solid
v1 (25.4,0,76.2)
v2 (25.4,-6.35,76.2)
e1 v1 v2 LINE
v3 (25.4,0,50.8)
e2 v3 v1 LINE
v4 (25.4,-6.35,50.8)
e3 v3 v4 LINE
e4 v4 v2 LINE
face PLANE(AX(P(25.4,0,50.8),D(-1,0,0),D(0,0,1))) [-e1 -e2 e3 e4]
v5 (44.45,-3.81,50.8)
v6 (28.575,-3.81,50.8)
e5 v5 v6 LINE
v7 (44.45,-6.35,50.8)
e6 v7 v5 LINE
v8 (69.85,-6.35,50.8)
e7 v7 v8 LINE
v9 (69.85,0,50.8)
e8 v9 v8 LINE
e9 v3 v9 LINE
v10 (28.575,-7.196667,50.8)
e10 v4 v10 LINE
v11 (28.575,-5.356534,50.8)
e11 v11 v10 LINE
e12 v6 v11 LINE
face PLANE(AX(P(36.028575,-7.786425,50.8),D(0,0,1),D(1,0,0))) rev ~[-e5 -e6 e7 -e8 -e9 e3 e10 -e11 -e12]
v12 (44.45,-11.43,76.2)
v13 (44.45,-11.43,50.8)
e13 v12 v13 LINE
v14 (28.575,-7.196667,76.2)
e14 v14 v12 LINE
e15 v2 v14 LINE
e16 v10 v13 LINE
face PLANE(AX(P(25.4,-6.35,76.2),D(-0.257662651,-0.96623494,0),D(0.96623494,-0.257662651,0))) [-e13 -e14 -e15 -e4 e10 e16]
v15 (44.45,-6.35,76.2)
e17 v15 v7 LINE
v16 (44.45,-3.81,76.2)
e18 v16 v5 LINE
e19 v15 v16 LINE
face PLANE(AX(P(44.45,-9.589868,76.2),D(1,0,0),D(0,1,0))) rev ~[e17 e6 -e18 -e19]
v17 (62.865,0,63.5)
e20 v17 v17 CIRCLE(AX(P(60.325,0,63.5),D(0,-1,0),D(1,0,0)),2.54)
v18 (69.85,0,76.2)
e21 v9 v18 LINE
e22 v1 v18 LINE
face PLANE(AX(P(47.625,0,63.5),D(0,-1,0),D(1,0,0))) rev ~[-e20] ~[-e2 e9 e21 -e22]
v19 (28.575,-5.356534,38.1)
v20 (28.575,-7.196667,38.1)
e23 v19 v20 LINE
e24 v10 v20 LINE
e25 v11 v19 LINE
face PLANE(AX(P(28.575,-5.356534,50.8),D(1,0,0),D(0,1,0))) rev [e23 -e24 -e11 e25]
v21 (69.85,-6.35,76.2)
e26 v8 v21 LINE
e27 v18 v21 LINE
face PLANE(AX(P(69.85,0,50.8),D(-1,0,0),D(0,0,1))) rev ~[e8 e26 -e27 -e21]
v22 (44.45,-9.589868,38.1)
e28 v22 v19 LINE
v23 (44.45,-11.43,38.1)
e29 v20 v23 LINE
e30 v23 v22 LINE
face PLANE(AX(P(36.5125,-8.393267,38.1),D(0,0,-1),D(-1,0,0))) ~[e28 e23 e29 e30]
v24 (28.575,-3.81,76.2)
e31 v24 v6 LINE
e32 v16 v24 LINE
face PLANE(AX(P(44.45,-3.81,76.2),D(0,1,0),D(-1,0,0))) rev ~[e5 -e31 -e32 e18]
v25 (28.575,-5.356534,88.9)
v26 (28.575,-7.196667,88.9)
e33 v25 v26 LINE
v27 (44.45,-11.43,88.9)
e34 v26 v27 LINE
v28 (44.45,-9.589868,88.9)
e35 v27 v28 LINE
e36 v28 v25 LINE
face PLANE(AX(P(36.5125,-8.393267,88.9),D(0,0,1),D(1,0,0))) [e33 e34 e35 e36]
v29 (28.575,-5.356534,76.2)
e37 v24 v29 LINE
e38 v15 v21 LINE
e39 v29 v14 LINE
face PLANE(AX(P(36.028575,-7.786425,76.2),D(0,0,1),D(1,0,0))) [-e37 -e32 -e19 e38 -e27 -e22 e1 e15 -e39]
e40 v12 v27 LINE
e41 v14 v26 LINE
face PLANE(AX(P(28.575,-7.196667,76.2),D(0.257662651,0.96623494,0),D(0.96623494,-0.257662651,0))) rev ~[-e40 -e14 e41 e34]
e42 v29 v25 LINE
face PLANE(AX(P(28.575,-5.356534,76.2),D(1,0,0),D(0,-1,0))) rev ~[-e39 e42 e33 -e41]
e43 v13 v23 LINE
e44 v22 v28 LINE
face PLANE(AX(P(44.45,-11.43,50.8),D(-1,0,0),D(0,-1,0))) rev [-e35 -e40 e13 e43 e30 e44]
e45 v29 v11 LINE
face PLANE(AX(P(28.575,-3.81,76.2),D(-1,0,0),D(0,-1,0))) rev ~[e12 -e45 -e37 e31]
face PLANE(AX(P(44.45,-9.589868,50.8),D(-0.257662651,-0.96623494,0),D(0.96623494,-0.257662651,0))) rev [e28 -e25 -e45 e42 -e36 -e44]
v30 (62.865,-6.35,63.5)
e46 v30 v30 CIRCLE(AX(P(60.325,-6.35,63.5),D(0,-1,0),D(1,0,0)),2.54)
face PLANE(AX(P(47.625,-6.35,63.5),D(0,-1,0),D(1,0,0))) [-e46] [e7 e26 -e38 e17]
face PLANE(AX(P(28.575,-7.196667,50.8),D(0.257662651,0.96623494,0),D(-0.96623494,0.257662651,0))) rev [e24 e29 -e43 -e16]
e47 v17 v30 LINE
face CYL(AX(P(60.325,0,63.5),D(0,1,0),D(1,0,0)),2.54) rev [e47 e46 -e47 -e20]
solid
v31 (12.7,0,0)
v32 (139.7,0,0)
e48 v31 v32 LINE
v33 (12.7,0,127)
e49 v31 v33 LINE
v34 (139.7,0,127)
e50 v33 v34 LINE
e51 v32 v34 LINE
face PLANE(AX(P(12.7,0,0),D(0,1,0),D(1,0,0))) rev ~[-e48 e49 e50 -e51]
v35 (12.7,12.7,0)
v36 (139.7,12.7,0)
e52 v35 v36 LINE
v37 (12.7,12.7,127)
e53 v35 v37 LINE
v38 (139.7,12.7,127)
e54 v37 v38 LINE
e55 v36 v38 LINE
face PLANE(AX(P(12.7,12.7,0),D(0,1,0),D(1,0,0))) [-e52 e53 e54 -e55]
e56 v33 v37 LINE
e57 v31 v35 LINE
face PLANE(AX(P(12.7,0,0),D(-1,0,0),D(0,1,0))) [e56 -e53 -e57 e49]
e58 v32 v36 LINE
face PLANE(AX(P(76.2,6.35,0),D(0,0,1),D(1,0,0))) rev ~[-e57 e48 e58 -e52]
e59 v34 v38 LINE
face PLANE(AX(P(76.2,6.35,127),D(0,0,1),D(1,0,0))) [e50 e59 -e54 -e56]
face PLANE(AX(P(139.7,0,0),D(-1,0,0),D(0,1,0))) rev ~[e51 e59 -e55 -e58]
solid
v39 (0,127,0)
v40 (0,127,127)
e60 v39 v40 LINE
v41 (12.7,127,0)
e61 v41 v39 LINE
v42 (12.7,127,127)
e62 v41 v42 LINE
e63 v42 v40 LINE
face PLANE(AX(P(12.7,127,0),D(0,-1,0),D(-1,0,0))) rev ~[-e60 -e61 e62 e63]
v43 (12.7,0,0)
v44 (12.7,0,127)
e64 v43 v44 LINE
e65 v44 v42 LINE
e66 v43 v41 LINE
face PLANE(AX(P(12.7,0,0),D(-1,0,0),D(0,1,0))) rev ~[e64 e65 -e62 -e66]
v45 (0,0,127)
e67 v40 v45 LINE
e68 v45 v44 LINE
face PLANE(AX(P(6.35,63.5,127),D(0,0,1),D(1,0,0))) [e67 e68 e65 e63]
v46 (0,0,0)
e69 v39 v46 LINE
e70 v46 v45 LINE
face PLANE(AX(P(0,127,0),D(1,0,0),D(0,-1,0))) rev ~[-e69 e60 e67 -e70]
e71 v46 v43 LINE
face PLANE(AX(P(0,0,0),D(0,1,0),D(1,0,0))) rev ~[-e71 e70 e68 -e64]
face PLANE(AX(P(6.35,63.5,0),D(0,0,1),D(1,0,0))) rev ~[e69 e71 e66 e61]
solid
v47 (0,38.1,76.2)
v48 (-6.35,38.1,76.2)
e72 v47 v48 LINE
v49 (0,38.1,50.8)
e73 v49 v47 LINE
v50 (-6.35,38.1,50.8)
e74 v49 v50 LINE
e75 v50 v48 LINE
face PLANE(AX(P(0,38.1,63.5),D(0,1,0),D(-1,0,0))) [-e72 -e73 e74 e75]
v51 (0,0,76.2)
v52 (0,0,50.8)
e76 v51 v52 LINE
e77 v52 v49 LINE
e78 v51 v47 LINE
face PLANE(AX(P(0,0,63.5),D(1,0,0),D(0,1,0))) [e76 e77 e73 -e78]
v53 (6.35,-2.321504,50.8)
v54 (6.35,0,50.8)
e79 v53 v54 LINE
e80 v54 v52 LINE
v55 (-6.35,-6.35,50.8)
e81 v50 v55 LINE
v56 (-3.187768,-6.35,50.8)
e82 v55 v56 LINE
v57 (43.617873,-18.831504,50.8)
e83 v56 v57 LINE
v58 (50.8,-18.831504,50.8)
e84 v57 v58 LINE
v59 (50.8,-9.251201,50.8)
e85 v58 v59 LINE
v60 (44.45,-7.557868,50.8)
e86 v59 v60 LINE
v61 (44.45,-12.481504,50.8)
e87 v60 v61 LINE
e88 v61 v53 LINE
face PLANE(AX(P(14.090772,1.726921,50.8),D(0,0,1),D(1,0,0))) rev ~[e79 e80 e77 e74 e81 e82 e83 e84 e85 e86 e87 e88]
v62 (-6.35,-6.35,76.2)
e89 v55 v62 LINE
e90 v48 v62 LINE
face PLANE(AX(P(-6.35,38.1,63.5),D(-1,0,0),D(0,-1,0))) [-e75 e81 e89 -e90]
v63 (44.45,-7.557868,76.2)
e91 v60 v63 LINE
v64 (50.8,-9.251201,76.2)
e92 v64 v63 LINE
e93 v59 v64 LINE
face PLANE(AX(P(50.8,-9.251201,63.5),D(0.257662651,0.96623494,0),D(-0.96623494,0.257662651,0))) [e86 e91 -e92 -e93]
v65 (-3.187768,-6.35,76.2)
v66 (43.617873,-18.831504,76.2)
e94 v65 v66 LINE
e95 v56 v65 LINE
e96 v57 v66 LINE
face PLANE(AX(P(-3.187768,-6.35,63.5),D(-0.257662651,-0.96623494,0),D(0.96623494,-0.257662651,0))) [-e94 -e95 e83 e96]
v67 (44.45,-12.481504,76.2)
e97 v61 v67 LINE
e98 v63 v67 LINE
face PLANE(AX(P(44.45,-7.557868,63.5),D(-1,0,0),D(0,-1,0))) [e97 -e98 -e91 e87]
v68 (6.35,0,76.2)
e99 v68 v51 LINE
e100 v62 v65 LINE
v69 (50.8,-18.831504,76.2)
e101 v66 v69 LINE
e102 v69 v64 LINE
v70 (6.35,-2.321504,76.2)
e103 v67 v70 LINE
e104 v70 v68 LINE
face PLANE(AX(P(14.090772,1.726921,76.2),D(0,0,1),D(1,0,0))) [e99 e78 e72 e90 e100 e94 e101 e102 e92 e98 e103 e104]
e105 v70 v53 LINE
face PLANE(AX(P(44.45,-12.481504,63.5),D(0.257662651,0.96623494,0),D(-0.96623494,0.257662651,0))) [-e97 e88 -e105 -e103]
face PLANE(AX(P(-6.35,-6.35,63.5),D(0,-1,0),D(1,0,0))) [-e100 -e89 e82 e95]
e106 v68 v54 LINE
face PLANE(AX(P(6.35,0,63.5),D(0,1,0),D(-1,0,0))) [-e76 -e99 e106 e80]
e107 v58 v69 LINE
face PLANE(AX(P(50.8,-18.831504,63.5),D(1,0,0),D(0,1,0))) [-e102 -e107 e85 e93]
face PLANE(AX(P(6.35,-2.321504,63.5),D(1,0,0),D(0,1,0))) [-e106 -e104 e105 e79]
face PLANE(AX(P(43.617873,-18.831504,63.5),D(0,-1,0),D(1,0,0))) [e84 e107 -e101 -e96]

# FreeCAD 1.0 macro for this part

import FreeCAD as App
import Part
import Sketcher
from FreeCAD import Vector
Q = App.Units.Quantity

doc = App.newDocument("Part")
body = doc.addObject("PartDesign::Body", "Body")

# Sketch on XY plane
sketch1 = body.newObject("Sketcher::SketchObject", "Sketch")
sketch1.AttachmentSupport = (doc.getObject("XY_Plane"), [""])
sketch1.MapMode = "FlatFace"
sketch1.addGeometry([
    Part.LineSegment(Vector(13, 127, 0), Vector(0, 127, 0)),
    Part.LineSegment(Vector(0, 127, 0), Vector(0, 0, 0)),
    Part.LineSegment(Vector(0, 0, 0), Vector(13, 0, 0)),
    Part.LineSegment(Vector(13, 0, 0), Vector(13, 127, 0)),
], False)
sketch1.addConstraint([
    Sketcher.Constraint("Coincident", 0, 2, 1, 1),
    Sketcher.Constraint("Coincident", 1, 2, 2, 1),
    Sketcher.Constraint("Coincident", 2, 2, 3, 1),
    Sketcher.Constraint("Coincident", 3, 2, 0, 1),
    Sketcher.Constraint("Horizontal", 0),
    Sketcher.Constraint("Vertical", 1),
    Sketcher.Constraint("Horizontal", 2),
    Sketcher.Constraint("Vertical", 3),
    Sketcher.Constraint("Coincident", 1, 2, -1, 1),
    Sketcher.Constraint("DistanceY", 1, 2, 1, 1, Q("5 in")),
    Sketcher.Constraint("DistanceX", 0, 2, 0, 1, Q("0.5 in")),
])
pad1 = body.newObject("PartDesign::Pad", "Pad")
pad1.Profile = sketch1
pad1.Length = Q("5 in")
body2 = doc.addObject("PartDesign::Body", "Body001")

# Sketch on XY plane
sketch2 = body2.newObject("Sketcher::SketchObject", "Sketch001")
sketch2.AttachmentSupport = (doc.getObject("XY_Plane001"), [""])
sketch2.MapMode = "FlatFace"
sketch2.addGeometry([
    Part.LineSegment(Vector(13, 13, 0), Vector(13, 0, 0)),
    Part.LineSegment(Vector(13, 0, 0), Vector(140, 0, 0)),
    Part.LineSegment(Vector(140, 0, 0), Vector(140, 13, 0)),
    Part.LineSegment(Vector(140, 13, 0), Vector(13, 13, 0)),
], False)
sketch2.addConstraint([
    Sketcher.Constraint("Coincident", 0, 2, 1, 1),
    Sketcher.Constraint("Coincident", 1, 2, 2, 1),
    Sketcher.Constraint("Coincident", 2, 2, 3, 1),
    Sketcher.Constraint("Coincident", 3, 2, 0, 1),
    Sketcher.Constraint("Vertical", 0),
    Sketcher.Constraint("Horizontal", 1),
    Sketcher.Constraint("Vertical", 2),
    Sketcher.Constraint("Horizontal", 3),
    Sketcher.Constraint("PointOnObject", 0, 2, -1),
    Sketcher.Constraint("DistanceX", 1, 1, 1, 2, Q("5 in")),
    Sketcher.Constraint("DistanceY", 0, 2, 0, 1, Q("0.5 in")),
    Sketcher.Constraint("DistanceX", -1, 1, 0, 2, Q("0.5 in")),
])
pad2 = body2.newObject("PartDesign::Pad", "Pad001")
pad2.Profile = sketch2
pad2.Length = Q("5 in")
body3 = doc.addObject("PartDesign::Body", "Body002")

# Sketch on XZ plane
sketch3 = body3.newObject("Sketcher::SketchObject", "Sketch002")
sketch3.AttachmentSupport = (doc.getObject("XZ_Plane002"), [""])
sketch3.MapMode = "FlatFace"
sketch3.addGeometry([
    Part.LineSegment(Vector(25.4, 76.2, 0), Vector(25.4, 50.8, 0)),  # 0
    Part.LineSegment(Vector(25.4, 50.8, 0), Vector(69.8, 50.8, 0)),  # 1
    Part.LineSegment(Vector(69.8, 50.8, 0), Vector(69.8, 76.2, 0)),  # 2
    Part.LineSegment(Vector(69.8, 76.2, 0), Vector(25.4, 76.2, 0)),  # 3
    Part.Circle(Vector(60.3, 63.5, 0), Vector(0, 0, 1), 2.5),  # 4
], False)
sketch3.addConstraint([
    Sketcher.Constraint("Coincident", 0, 2, 1, 1),
    Sketcher.Constraint("Coincident", 1, 2, 2, 1),
    Sketcher.Constraint("Coincident", 2, 2, 3, 1),
    Sketcher.Constraint("Coincident", 3, 2, 0, 1),
    Sketcher.Constraint("Vertical", 0),
    Sketcher.Constraint("Horizontal", 1),
    Sketcher.Constraint("Vertical", 2),
    Sketcher.Constraint("Horizontal", 3),
    Sketcher.Constraint("Diameter", 4, Q("0.2 in")),
    Sketcher.Constraint("DistanceY", 0, 2, 0, 1, Q("1 in")),
    Sketcher.Constraint("DistanceX", -1, 1, 0, 2, Q("1 in")),
    Sketcher.Constraint("DistanceY", -1, 1, 0, 2, Q("2 in")),
    Sketcher.Constraint("DistanceX", 1, 1, 1, 2, Q("1.75 in")),
    Sketcher.Constraint("DistanceY", -1, 1, 4, 3, Q("2.5 in")),
    Sketcher.Constraint("DistanceX", -1, 1, 4, 3, Q("2.375 in")),
])
pad3 = body3.newObject("PartDesign::Pad", "Pad002")
pad3.Profile = sketch3
pad3.Length = Q("0.25 in")

# Sketch on XY plane
sketch4 = body3.newObject("Sketcher::SketchObject", "Sketch003")
sketch4.AttachmentSupport = (doc.getObject("XY_Plane002"), [""])
sketch4.MapMode = "FlatFace"
sketch4.AttachmentOffset = App.Placement(Vector(0, 0, 3 * 25.4), App.Rotation())
sketch4.addGeometry([
    Part.LineSegment(Vector(44, -6, 0), Vector(25, -6, 0)),
    Part.LineSegment(Vector(25, -6, 0), Vector(44, -11, 0)),
    Part.LineSegment(Vector(44, -11, 0), Vector(44, -6, 0)),
], False)
sketch4.addConstraint([
    Sketcher.Constraint("Coincident", 0, 2, 1, 1),
    Sketcher.Constraint("Coincident", 1, 2, 2, 1),
    Sketcher.Constraint("Coincident", 2, 2, 0, 1),
    Sketcher.Constraint("Horizontal", 0),
    Sketcher.Constraint("Vertical", 2),
    Sketcher.Constraint("DistanceY", 2, 1, 2, 2, Q("0.2 in")),
    Sketcher.Constraint("DistanceX", -1, 1, 0, 2, Q("1 in")),
    Sketcher.Constraint("DistanceX", 0, 2, 0, 1, Q("0.75 in")),
    Sketcher.Constraint("DistanceY", 0, 2, -1, 1, Q("0.25 in")),
])
pad4 = body3.newObject("PartDesign::Pad", "Pad003")
pad4.Profile = sketch4
pad4.Length = Q("1 in")
pad4.Reversed = True

# Sketch on XY plane
sketch5 = body3.newObject("Sketcher::SketchObject", "Sketch004")
sketch5.AttachmentSupport = (doc.getObject("XY_Plane002"), [""])
sketch5.MapMode = "FlatFace"
sketch5.AttachmentOffset = App.Placement(Vector(0, 0, 3 * 25.4), App.Rotation())
sketch5.addGeometry([
    Part.LineSegment(Vector(28.6, -5.4, 0), Vector(44.5, -9.6, 0)),
    Part.LineSegment(Vector(44.5, -9.6, 0), Vector(44.5, -3.8, 0)),
    Part.LineSegment(Vector(44.5, -3.8, 0), Vector(28.6, -3.8, 0)),
    Part.LineSegment(Vector(28.6, -3.8, 0), Vector(28.6, -5.4, 0)),
], False)
sketch5.addConstraint([
    Sketcher.Constraint("Coincident", 0, 2, 1, 1),
    Sketcher.Constraint("Coincident", 1, 2, 2, 1),
    Sketcher.Constraint("Coincident", 2, 2, 3, 1),
    Sketcher.Constraint("Coincident", 3, 2, 0, 1),
    Sketcher.Constraint("Vertical", 1),
    Sketcher.Constraint("Horizontal", 2),
    Sketcher.Constraint("Vertical", 3),
    Sketcher.Constraint("DistanceX", 2, 2, 2, 1, Q("0.625 in")),
    Sketcher.Constraint("DistanceX", -1, 1, 0, 2, Q("1.75 in")),
    Sketcher.Constraint("DistanceY", 1, 2, -1, 1, Q("0.15 in")),
    Sketcher.Constraint("Distance", 0, Q("16.429752 mm")),
    Sketcher.Constraint("DistanceY", 1, 1, 1, 2, Q("5.779868 mm")),
])
pocket1 = body3.newObject("PartDesign::Pocket", "Pocket")
pocket1.Profile = sketch5
pocket1.Type = "ThroughAll"

# Sketch on XY plane
sketch6 = body3.newObject("Sketcher::SketchObject", "Sketch005")
sketch6.AttachmentSupport = (doc.getObject("XY_Plane002"), [""])
sketch6.MapMode = "FlatFace"
sketch6.AttachmentOffset = App.Placement(Vector(0, 0, 3 * 25.4), App.Rotation())
sketch6.addGeometry([
    Part.LineSegment(Vector(44.5, -11.4, 0), Vector(44.5, -9.6, 0)),
    Part.LineSegment(Vector(44.5, -9.6, 0), Vector(28.6, -5.4, 0)),
    Part.LineSegment(Vector(28.6, -5.4, 0), Vector(28.6, -7.2, 0)),
    Part.LineSegment(Vector(28.6, -7.2, 0), Vector(44.5, -11.4, 0)),
], False)
sketch6.addConstraint([
    Sketcher.Constraint("Coincident", 0, 2, 1, 1),
    Sketcher.Constraint("Coincident", 1, 2, 2, 1),
    Sketcher.Constraint("Coincident", 2, 2, 3, 1),
    Sketcher.Constraint("Coincident", 3, 2, 0, 1),
    Sketcher.Constraint("Vertical", 0),
    Sketcher.Constraint("Vertical", 2),
    Sketcher.Constraint("Parallel", 1, 3),
    Sketcher.Constraint("DistanceX", -1, 1, 0, 2, Q("1.75 in")),
    Sketcher.Constraint("DistanceY", 3, 2, -1, 1, Q("0.45 in")),
    Sketcher.Constraint("DistanceX", -1, 1, 1, 2, Q("1.125 in")),
    Sketcher.Constraint("DistanceY", 0, 2, 2, 2, Q("2.393201 mm")),
    Sketcher.Constraint("Distance", 1, Q("16.429752 mm")),
])
pad5 = body3.newObject("PartDesign::Pad", "Pad004")
pad5.Profile = sketch6
pad5.Length = Q("0.5 in")
body4 = doc.addObject("PartDesign::Body", "Body003")
doc.recompute()

body4.BaseFeature = body3
doc.recompute()

mirroring = doc.addObject("Part::Mirroring", "Mirroring")
mirroring.Source = body3
mirroring.Base = Vector(0, 0, 63.5)
mirroring.Normal = Vector(0, 0, 1)
body5 = doc.addObject("PartDesign::Body", "Body004")
body5.BaseFeature = mirroring
boolean = body4.newObject("PartDesign::Boolean", "Boolean")
boolean.Type = "Fuse"
boolean.addObjects([body5])
doc.recompute()
body6 = doc.addObject("PartDesign::Body", "Body005")

# Sketch on XY plane
sketch7 = body6.newObject("Sketcher::SketchObject", "Sketch006")
sketch7.AttachmentSupport = (doc.getObject("XY_Plane005"), [""])
sketch7.MapMode = "FlatFace"
sketch7.AttachmentOffset = App.Placement(Vector(0, 0, 2.5 * 25.4), App.Rotation())
sketch7.addGeometry([
    Part.LineSegment(Vector(0, 0, 0), Vector(0, 38.1, 0)),  # 0
    Part.LineSegment(Vector(0, 38.1, 0), Vector(-6.3, 38.1, 0)),  # 1
    Part.LineSegment(Vector(-6.3, 38.1, 0), Vector(-6.3, -6.3, 0)),  # 2
    Part.LineSegment(Vector(-6.3, -6.3, 0), Vector(-3.2, -6.3, 0)),  # 3
    Part.LineSegment(Vector(-3.2, -6.3, 0), Vector(43.6, -18.8, 0)),  # 4
    Part.LineSegment(Vector(43.6, -18.8, 0), Vector(50.8, -18.8, 0)),  # 5
    Part.LineSegment(Vector(50.8, -18.8, 0), Vector(50.8, -9.3, 0)),  # 6
    Part.LineSegment(Vector(50.8, -9.3, 0), Vector(44.5, -7.6, 0)),  # 7
    Part.LineSegment(Vector(44.5, -7.6, 0), Vector(44.5, -12.5, 0)),  # 8
    Part.LineSegment(Vector(44.5, -12.5, 0), Vector(6.3, -2.3, 0)),  # 9
    Part.LineSegment(Vector(6.3, -2.3, 0), Vector(6.3, 0, 0)),  # 10
    Part.LineSegment(Vector(6.3, 0, 0), Vector(0, 0, 0)),  # 11
], False)
sketch7.addConstraint([
    Sketcher.Constraint("Coincident", 0, 2, 1, 1),
    Sketcher.Constraint("Coincident", 1, 2, 2, 1),
    Sketcher.Constraint("Coincident", 2, 2, 3, 1),
    Sketcher.Constraint("Coincident", 3, 2, 4, 1),
    Sketcher.Constraint("Coincident", 4, 2, 5, 1),
    Sketcher.Constraint("Coincident", 5, 2, 6, 1),
    Sketcher.Constraint("Coincident", 6, 2, 7, 1),
    Sketcher.Constraint("Coincident", 7, 2, 8, 1),
    Sketcher.Constraint("Coincident", 8, 2, 9, 1),
    Sketcher.Constraint("Coincident", 9, 2, 10, 1),
    Sketcher.Constraint("Coincident", 10, 2, 11, 1),
    Sketcher.Constraint("Coincident", 11, 2, 0, 1),
    Sketcher.Constraint("Vertical", 0),
    Sketcher.Constraint("Horizontal", 1),
    Sketcher.Constraint("Vertical", 2),
    Sketcher.Constraint("Horizontal", 3),
    Sketcher.Constraint("Horizontal", 5),
    Sketcher.Constraint("Vertical", 6),
    Sketcher.Constraint("Vertical", 8),
    Sketcher.Constraint("Vertical", 10),
    Sketcher.Constraint("Horizontal", 11),
    Sketcher.Constraint("Coincident", 11, 2, -1, 1),
    Sketcher.Constraint("Parallel", 4, 7),
    Sketcher.Constraint("Parallel", 7, 9),
    Sketcher.Constraint("Equal", 1, 11),
    Sketcher.Constraint("DistanceY", 0, 1, 0, 2, Q("1.5 in")),
    Sketcher.Constraint("DistanceX", -1, 1, 5, 2, Q("2 in")),
    Sketcher.Constraint("DistanceX", 2, 2, 7, 2, Q("2 in")),
    Sketcher.Constraint("DistanceX", 1, 2, 1, 1, Q("0.25 in")),
    Sketcher.Constraint("DistanceY", 2, 2, 2, 1, Q("1.75 in")),
    Sketcher.Constraint("DistanceY", 8, 2, 9, 2, Q("0.4 in")),
    Sketcher.Constraint("DistanceY", 4, 2, 8, 2, Q("0.25 in")),
    Sketcher.Constraint("DistanceY", 6, 2, -1, 1, Q("9.251201 mm")),
    Sketcher.Constraint("DistanceX", 3, 1, 3, 2, Q("3.162232 mm")),
    Sketcher.Constraint("DistanceX", 5, 1, 5, 2, Q("7.182127 mm")),
])
pad6 = body6.newObject("PartDesign::Pad", "Pad005")
pad6.Profile = sketch7
pad6.Length = Q("1 in")
pad6.Midplane = True
mirroring.Visibility = False

doc.recompute()
